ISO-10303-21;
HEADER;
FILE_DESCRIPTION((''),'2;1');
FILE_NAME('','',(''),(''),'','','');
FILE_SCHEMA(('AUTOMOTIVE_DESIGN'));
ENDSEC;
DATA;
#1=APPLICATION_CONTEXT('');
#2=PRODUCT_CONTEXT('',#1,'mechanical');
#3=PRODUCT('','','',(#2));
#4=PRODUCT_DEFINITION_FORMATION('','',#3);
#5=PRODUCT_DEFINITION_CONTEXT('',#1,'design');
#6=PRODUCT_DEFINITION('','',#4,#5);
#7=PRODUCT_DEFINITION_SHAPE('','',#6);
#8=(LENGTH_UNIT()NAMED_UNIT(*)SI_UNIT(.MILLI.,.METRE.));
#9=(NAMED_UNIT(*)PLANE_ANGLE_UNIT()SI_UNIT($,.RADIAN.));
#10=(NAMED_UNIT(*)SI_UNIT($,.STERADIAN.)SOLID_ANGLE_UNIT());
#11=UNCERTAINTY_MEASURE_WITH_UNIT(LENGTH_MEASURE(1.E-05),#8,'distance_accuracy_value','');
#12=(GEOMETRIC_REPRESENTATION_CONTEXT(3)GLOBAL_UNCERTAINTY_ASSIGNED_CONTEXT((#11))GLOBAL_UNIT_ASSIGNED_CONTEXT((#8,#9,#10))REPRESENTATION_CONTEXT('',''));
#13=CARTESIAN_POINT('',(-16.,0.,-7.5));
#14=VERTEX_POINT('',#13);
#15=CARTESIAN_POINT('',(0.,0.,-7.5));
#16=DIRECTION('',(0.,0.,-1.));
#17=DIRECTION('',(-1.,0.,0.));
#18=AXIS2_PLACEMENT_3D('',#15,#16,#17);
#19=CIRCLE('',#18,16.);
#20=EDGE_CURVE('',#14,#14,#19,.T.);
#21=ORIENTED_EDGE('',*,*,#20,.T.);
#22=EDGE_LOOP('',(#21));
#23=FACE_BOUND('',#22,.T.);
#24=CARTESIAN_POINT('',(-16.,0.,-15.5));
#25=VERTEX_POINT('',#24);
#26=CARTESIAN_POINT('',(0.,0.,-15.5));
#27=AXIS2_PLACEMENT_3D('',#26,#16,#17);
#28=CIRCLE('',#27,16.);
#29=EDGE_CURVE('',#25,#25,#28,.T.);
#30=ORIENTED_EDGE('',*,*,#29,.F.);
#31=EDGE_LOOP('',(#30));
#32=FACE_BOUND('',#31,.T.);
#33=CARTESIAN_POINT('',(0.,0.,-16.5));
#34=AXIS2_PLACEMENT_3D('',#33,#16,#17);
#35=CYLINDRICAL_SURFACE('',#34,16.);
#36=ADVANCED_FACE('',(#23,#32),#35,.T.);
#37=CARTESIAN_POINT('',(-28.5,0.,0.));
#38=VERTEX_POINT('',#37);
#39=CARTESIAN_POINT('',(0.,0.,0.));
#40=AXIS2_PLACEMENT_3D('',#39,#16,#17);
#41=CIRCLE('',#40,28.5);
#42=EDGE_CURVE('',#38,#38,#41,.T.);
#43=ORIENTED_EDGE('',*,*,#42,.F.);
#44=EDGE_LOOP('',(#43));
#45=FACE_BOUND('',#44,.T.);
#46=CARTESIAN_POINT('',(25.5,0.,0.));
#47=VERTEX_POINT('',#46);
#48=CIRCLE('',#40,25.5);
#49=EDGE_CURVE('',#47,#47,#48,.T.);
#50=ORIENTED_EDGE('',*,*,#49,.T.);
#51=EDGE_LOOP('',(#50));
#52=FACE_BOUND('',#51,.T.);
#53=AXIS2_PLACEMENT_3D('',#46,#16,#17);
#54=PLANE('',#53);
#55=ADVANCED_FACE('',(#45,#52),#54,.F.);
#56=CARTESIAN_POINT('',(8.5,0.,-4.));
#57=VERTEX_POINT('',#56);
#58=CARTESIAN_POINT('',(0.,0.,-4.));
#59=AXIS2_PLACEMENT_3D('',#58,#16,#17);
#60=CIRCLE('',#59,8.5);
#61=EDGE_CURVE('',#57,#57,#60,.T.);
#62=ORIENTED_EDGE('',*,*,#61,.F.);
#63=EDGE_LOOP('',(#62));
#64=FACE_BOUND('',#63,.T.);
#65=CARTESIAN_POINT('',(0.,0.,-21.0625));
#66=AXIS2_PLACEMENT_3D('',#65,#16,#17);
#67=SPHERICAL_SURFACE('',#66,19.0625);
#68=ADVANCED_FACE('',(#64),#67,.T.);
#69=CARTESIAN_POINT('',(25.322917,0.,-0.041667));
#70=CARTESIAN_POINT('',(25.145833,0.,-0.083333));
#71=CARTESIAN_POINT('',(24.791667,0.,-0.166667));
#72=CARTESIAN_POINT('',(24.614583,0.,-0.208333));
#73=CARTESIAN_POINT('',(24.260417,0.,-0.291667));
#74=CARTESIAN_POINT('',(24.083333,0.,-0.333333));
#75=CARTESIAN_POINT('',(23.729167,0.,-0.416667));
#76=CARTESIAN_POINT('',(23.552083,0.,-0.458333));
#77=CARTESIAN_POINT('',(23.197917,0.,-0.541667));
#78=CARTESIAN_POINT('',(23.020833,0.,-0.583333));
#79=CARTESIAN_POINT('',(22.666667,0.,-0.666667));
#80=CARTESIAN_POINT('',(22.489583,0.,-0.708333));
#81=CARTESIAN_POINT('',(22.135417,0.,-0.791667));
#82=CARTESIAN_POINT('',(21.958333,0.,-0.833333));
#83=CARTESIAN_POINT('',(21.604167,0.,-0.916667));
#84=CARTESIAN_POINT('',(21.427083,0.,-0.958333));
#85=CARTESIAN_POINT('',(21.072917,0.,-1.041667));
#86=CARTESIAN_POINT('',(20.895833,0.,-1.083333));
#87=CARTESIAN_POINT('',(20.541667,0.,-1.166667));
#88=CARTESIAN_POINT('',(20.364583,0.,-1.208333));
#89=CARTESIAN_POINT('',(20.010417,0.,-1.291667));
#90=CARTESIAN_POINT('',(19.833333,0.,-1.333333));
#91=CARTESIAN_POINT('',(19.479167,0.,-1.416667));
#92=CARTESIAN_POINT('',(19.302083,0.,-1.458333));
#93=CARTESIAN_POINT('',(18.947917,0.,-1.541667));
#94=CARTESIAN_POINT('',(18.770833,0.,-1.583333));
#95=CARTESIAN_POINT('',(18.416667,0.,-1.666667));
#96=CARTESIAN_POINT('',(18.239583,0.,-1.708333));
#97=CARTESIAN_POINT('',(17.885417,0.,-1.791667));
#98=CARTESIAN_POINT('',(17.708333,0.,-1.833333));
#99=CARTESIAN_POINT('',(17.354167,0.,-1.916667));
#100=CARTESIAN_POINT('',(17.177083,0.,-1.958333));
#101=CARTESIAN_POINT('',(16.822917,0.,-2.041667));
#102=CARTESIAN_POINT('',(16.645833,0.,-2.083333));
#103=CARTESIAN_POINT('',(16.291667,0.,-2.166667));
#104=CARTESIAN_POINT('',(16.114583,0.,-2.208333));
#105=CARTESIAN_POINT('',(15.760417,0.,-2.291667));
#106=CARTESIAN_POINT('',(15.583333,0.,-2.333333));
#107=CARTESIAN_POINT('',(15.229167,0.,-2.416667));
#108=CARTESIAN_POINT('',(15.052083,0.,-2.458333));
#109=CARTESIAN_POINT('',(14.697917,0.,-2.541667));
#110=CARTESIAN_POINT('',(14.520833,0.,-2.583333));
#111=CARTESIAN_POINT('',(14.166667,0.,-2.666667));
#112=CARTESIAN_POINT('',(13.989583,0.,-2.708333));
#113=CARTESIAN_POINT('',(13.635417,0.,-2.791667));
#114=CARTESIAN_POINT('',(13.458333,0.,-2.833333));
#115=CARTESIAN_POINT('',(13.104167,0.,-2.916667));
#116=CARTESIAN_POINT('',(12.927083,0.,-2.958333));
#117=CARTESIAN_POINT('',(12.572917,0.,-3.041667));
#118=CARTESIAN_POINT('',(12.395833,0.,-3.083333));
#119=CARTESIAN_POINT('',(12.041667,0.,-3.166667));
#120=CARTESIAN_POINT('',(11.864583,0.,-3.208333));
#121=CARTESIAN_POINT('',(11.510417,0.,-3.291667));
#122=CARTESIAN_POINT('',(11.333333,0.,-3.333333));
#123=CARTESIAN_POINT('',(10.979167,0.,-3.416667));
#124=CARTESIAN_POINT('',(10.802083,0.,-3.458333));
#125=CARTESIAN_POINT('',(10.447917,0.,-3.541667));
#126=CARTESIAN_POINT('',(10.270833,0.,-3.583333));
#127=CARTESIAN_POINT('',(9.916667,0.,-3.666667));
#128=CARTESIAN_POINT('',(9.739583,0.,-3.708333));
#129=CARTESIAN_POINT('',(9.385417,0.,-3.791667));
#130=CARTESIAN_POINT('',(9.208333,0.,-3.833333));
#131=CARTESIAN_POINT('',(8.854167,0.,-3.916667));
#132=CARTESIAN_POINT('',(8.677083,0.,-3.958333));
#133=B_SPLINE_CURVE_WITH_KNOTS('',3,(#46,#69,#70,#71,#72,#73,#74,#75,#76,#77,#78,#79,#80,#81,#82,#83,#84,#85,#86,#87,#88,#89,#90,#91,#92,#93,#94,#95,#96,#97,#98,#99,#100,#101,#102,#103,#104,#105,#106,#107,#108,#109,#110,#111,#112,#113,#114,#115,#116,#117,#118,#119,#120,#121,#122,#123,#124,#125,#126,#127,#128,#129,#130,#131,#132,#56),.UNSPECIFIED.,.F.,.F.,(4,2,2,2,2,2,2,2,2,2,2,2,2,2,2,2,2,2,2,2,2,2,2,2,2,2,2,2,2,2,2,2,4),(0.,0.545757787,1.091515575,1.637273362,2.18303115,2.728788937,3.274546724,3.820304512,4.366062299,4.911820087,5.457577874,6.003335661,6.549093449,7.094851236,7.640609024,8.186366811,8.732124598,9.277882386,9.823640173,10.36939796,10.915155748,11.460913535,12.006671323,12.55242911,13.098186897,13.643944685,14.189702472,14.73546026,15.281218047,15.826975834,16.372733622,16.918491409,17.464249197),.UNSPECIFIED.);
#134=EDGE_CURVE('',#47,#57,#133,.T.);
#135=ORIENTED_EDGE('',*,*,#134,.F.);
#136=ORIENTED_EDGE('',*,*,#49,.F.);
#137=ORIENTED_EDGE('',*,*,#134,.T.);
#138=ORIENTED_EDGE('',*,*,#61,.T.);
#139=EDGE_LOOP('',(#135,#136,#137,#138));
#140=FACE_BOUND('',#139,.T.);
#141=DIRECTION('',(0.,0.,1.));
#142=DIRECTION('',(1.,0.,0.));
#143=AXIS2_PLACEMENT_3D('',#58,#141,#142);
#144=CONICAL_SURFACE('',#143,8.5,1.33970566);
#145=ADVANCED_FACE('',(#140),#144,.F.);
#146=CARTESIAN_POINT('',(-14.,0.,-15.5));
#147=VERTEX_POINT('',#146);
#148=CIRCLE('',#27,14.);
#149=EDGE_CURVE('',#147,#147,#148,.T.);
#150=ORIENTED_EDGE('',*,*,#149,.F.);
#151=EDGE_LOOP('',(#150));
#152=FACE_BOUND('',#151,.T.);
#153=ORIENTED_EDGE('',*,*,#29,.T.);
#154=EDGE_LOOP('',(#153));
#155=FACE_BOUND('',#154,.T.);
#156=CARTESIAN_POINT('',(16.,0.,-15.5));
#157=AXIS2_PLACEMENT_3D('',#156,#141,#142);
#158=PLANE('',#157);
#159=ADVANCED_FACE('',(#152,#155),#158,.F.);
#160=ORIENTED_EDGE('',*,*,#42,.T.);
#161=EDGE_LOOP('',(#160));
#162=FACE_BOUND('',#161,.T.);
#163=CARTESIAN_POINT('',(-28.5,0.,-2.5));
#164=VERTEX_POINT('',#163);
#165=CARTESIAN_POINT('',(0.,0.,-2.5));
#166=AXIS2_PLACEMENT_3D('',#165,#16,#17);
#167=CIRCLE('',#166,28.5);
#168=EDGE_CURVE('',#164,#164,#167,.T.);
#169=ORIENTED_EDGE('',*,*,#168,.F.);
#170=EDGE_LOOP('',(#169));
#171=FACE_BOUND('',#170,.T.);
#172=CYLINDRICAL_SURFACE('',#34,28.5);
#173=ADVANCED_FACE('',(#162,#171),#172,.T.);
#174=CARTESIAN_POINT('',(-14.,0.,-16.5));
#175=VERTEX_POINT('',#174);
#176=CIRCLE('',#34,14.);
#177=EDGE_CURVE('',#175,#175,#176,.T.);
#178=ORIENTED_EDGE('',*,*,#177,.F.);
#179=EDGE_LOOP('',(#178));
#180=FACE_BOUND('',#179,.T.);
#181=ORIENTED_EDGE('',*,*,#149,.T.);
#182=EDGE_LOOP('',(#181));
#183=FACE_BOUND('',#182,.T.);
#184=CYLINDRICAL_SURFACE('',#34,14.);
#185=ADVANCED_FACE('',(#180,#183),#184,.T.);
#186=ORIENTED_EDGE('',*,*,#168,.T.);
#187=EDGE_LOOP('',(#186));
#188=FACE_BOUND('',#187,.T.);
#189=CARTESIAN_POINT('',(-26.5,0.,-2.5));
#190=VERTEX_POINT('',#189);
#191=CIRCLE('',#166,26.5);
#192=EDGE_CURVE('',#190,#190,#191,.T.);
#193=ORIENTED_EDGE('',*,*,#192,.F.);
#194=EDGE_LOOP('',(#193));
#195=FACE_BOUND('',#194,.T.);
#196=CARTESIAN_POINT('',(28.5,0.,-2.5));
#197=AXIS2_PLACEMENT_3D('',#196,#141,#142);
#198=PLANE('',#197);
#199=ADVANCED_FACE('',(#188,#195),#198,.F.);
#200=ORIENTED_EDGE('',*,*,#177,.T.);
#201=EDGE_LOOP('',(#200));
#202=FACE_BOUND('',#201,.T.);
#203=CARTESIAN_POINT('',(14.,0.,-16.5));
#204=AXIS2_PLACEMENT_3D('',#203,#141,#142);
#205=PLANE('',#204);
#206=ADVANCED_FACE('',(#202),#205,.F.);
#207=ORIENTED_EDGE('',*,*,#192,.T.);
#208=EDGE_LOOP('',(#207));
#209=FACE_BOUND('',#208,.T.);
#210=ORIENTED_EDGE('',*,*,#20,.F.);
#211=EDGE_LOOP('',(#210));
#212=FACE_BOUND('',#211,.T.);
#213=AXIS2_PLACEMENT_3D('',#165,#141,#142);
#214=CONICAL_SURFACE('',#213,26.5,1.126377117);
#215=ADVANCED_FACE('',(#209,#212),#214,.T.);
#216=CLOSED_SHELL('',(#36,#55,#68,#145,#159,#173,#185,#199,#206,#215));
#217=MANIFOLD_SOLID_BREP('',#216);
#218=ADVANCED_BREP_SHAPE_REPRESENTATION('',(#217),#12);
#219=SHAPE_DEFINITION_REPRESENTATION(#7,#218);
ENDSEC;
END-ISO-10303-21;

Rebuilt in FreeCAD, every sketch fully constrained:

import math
import FreeCAD as App
import Part
import Sketcher
from FreeCAD import Vector
Q = App.Units.Quantity

doc = App.newDocument("Part")
body = doc.addObject("PartDesign::Body", "Body")

sketch1 = body.newObject("Sketcher::SketchObject", "Sketch")
sketch1.AttachmentSupport = (doc.getObject("XZ_Plane"), [""])
sketch1.MapMode = "FlatFace"
sketch1.addGeometry([
    Part.LineSegment(Vector(25.5, 0, 0), Vector(28.5, 0, 0)),
    Part.LineSegment(Vector(28.5, 0, 0), Vector(28.5, -2.5, 0)),
    Part.LineSegment(Vector(28.5, -2.5, 0), Vector(26.5, -2.5, 0)),
    Part.LineSegment(Vector(26.5, -2.5, 0), Vector(16, -7.5, 0)),
    Part.LineSegment(Vector(16, -7.5, 0), Vector(16, -15.5, 0)),
    Part.LineSegment(Vector(16, -15.5, 0), Vector(14, -15.5, 0)),
    Part.LineSegment(Vector(14, -15.5, 0), Vector(14, -16.5, 0)),
    Part.LineSegment(Vector(14, -16.5, 0), Vector(0, -16.5, 0)),
    Part.LineSegment(Vector(0, -16.5, 0), Vector(0, -2, 0)),
    Part.ArcOfCircle(Part.Circle(Vector(0, -21.1, 0), Vector(0, 0, 1), 19.1), math.radians(64), math.radians(90)),
    Part.LineSegment(Vector(8.5, -4, 0), Vector(25.5, 0, 0)),
], False)
sketch1.addConstraint([
    Sketcher.Constraint("Coincident", 0, 2, 1, 1),
    Sketcher.Constraint("Coincident", 1, 2, 2, 1),
    Sketcher.Constraint("Coincident", 2, 2, 3, 1),
    Sketcher.Constraint("Coincident", 3, 2, 4, 1),
    Sketcher.Constraint("Coincident", 4, 2, 5, 1),
    Sketcher.Constraint("Coincident", 5, 2, 6, 1),
    Sketcher.Constraint("Coincident", 6, 2, 7, 1),
    Sketcher.Constraint("Coincident", 7, 2, 8, 1),
    Sketcher.Constraint("Coincident", 8, 2, 9, 2),
    Sketcher.Constraint("Coincident", 9, 1, 10, 1),
    Sketcher.Constraint("Coincident", 10, 2, 0, 1),
    Sketcher.Constraint("Horizontal", 0),
    Sketcher.Constraint("Vertical", 1),
    Sketcher.Constraint("Horizontal", 2),
    Sketcher.Constraint("Vertical", 4),
    Sketcher.Constraint("Horizontal", 5),
    Sketcher.Constraint("Vertical", 6),
    Sketcher.Constraint("Horizontal", 7),
    Sketcher.Constraint("Vertical", 8),
    Sketcher.Constraint("PointOnObject", 9, 3, -2),
    Sketcher.Constraint("PointOnObject", 0, 2, -1),
    Sketcher.Constraint("PointOnObject", 7, 2, -2),
    Sketcher.Constraint("Equal", 2, 5),
    Sketcher.Constraint("DistanceX", 0, 1, 0, 2, Q("3 mm")),
    Sketcher.Constraint("DistanceX", 2, 2, 2, 1, Q("2 mm")),
    Sketcher.Constraint("DistanceX", 7, 2, 7, 1, Q("14 mm")),
    Sketcher.Constraint("DistanceY", 4, 2, 4, 1, Q("8 mm")),
    Sketcher.Constraint("DistanceY", 6, 2, 6, 1, Q("1 mm")),
    Sketcher.Constraint("DistanceY", 1, 2, 1, 1, Q("2.5 mm")),
    Sketcher.Constraint("DistanceY", 8, 1, 8, 2, Q("14.5 mm")),
    Sketcher.Constraint("DistanceY", 8, 2, -1, 1, Q("2 mm")),
    Sketcher.Constraint("DistanceY", 9, 1, -1, 1, Q("4 mm")),
    Sketcher.Constraint("DistanceX", 9, 1, 10, 2, Q("17 mm")),
    Sketcher.Constraint("DistanceX", -1, 1, 0, 2, Q("28.5 mm")),
])
revolution = body.newObject("PartDesign::Revolution", "Revolution")
revolution.Profile = sketch1
revolution.ReferenceAxis = (sketch1, ["V_Axis"])
revolution.Angle = 360

doc.recompute()
